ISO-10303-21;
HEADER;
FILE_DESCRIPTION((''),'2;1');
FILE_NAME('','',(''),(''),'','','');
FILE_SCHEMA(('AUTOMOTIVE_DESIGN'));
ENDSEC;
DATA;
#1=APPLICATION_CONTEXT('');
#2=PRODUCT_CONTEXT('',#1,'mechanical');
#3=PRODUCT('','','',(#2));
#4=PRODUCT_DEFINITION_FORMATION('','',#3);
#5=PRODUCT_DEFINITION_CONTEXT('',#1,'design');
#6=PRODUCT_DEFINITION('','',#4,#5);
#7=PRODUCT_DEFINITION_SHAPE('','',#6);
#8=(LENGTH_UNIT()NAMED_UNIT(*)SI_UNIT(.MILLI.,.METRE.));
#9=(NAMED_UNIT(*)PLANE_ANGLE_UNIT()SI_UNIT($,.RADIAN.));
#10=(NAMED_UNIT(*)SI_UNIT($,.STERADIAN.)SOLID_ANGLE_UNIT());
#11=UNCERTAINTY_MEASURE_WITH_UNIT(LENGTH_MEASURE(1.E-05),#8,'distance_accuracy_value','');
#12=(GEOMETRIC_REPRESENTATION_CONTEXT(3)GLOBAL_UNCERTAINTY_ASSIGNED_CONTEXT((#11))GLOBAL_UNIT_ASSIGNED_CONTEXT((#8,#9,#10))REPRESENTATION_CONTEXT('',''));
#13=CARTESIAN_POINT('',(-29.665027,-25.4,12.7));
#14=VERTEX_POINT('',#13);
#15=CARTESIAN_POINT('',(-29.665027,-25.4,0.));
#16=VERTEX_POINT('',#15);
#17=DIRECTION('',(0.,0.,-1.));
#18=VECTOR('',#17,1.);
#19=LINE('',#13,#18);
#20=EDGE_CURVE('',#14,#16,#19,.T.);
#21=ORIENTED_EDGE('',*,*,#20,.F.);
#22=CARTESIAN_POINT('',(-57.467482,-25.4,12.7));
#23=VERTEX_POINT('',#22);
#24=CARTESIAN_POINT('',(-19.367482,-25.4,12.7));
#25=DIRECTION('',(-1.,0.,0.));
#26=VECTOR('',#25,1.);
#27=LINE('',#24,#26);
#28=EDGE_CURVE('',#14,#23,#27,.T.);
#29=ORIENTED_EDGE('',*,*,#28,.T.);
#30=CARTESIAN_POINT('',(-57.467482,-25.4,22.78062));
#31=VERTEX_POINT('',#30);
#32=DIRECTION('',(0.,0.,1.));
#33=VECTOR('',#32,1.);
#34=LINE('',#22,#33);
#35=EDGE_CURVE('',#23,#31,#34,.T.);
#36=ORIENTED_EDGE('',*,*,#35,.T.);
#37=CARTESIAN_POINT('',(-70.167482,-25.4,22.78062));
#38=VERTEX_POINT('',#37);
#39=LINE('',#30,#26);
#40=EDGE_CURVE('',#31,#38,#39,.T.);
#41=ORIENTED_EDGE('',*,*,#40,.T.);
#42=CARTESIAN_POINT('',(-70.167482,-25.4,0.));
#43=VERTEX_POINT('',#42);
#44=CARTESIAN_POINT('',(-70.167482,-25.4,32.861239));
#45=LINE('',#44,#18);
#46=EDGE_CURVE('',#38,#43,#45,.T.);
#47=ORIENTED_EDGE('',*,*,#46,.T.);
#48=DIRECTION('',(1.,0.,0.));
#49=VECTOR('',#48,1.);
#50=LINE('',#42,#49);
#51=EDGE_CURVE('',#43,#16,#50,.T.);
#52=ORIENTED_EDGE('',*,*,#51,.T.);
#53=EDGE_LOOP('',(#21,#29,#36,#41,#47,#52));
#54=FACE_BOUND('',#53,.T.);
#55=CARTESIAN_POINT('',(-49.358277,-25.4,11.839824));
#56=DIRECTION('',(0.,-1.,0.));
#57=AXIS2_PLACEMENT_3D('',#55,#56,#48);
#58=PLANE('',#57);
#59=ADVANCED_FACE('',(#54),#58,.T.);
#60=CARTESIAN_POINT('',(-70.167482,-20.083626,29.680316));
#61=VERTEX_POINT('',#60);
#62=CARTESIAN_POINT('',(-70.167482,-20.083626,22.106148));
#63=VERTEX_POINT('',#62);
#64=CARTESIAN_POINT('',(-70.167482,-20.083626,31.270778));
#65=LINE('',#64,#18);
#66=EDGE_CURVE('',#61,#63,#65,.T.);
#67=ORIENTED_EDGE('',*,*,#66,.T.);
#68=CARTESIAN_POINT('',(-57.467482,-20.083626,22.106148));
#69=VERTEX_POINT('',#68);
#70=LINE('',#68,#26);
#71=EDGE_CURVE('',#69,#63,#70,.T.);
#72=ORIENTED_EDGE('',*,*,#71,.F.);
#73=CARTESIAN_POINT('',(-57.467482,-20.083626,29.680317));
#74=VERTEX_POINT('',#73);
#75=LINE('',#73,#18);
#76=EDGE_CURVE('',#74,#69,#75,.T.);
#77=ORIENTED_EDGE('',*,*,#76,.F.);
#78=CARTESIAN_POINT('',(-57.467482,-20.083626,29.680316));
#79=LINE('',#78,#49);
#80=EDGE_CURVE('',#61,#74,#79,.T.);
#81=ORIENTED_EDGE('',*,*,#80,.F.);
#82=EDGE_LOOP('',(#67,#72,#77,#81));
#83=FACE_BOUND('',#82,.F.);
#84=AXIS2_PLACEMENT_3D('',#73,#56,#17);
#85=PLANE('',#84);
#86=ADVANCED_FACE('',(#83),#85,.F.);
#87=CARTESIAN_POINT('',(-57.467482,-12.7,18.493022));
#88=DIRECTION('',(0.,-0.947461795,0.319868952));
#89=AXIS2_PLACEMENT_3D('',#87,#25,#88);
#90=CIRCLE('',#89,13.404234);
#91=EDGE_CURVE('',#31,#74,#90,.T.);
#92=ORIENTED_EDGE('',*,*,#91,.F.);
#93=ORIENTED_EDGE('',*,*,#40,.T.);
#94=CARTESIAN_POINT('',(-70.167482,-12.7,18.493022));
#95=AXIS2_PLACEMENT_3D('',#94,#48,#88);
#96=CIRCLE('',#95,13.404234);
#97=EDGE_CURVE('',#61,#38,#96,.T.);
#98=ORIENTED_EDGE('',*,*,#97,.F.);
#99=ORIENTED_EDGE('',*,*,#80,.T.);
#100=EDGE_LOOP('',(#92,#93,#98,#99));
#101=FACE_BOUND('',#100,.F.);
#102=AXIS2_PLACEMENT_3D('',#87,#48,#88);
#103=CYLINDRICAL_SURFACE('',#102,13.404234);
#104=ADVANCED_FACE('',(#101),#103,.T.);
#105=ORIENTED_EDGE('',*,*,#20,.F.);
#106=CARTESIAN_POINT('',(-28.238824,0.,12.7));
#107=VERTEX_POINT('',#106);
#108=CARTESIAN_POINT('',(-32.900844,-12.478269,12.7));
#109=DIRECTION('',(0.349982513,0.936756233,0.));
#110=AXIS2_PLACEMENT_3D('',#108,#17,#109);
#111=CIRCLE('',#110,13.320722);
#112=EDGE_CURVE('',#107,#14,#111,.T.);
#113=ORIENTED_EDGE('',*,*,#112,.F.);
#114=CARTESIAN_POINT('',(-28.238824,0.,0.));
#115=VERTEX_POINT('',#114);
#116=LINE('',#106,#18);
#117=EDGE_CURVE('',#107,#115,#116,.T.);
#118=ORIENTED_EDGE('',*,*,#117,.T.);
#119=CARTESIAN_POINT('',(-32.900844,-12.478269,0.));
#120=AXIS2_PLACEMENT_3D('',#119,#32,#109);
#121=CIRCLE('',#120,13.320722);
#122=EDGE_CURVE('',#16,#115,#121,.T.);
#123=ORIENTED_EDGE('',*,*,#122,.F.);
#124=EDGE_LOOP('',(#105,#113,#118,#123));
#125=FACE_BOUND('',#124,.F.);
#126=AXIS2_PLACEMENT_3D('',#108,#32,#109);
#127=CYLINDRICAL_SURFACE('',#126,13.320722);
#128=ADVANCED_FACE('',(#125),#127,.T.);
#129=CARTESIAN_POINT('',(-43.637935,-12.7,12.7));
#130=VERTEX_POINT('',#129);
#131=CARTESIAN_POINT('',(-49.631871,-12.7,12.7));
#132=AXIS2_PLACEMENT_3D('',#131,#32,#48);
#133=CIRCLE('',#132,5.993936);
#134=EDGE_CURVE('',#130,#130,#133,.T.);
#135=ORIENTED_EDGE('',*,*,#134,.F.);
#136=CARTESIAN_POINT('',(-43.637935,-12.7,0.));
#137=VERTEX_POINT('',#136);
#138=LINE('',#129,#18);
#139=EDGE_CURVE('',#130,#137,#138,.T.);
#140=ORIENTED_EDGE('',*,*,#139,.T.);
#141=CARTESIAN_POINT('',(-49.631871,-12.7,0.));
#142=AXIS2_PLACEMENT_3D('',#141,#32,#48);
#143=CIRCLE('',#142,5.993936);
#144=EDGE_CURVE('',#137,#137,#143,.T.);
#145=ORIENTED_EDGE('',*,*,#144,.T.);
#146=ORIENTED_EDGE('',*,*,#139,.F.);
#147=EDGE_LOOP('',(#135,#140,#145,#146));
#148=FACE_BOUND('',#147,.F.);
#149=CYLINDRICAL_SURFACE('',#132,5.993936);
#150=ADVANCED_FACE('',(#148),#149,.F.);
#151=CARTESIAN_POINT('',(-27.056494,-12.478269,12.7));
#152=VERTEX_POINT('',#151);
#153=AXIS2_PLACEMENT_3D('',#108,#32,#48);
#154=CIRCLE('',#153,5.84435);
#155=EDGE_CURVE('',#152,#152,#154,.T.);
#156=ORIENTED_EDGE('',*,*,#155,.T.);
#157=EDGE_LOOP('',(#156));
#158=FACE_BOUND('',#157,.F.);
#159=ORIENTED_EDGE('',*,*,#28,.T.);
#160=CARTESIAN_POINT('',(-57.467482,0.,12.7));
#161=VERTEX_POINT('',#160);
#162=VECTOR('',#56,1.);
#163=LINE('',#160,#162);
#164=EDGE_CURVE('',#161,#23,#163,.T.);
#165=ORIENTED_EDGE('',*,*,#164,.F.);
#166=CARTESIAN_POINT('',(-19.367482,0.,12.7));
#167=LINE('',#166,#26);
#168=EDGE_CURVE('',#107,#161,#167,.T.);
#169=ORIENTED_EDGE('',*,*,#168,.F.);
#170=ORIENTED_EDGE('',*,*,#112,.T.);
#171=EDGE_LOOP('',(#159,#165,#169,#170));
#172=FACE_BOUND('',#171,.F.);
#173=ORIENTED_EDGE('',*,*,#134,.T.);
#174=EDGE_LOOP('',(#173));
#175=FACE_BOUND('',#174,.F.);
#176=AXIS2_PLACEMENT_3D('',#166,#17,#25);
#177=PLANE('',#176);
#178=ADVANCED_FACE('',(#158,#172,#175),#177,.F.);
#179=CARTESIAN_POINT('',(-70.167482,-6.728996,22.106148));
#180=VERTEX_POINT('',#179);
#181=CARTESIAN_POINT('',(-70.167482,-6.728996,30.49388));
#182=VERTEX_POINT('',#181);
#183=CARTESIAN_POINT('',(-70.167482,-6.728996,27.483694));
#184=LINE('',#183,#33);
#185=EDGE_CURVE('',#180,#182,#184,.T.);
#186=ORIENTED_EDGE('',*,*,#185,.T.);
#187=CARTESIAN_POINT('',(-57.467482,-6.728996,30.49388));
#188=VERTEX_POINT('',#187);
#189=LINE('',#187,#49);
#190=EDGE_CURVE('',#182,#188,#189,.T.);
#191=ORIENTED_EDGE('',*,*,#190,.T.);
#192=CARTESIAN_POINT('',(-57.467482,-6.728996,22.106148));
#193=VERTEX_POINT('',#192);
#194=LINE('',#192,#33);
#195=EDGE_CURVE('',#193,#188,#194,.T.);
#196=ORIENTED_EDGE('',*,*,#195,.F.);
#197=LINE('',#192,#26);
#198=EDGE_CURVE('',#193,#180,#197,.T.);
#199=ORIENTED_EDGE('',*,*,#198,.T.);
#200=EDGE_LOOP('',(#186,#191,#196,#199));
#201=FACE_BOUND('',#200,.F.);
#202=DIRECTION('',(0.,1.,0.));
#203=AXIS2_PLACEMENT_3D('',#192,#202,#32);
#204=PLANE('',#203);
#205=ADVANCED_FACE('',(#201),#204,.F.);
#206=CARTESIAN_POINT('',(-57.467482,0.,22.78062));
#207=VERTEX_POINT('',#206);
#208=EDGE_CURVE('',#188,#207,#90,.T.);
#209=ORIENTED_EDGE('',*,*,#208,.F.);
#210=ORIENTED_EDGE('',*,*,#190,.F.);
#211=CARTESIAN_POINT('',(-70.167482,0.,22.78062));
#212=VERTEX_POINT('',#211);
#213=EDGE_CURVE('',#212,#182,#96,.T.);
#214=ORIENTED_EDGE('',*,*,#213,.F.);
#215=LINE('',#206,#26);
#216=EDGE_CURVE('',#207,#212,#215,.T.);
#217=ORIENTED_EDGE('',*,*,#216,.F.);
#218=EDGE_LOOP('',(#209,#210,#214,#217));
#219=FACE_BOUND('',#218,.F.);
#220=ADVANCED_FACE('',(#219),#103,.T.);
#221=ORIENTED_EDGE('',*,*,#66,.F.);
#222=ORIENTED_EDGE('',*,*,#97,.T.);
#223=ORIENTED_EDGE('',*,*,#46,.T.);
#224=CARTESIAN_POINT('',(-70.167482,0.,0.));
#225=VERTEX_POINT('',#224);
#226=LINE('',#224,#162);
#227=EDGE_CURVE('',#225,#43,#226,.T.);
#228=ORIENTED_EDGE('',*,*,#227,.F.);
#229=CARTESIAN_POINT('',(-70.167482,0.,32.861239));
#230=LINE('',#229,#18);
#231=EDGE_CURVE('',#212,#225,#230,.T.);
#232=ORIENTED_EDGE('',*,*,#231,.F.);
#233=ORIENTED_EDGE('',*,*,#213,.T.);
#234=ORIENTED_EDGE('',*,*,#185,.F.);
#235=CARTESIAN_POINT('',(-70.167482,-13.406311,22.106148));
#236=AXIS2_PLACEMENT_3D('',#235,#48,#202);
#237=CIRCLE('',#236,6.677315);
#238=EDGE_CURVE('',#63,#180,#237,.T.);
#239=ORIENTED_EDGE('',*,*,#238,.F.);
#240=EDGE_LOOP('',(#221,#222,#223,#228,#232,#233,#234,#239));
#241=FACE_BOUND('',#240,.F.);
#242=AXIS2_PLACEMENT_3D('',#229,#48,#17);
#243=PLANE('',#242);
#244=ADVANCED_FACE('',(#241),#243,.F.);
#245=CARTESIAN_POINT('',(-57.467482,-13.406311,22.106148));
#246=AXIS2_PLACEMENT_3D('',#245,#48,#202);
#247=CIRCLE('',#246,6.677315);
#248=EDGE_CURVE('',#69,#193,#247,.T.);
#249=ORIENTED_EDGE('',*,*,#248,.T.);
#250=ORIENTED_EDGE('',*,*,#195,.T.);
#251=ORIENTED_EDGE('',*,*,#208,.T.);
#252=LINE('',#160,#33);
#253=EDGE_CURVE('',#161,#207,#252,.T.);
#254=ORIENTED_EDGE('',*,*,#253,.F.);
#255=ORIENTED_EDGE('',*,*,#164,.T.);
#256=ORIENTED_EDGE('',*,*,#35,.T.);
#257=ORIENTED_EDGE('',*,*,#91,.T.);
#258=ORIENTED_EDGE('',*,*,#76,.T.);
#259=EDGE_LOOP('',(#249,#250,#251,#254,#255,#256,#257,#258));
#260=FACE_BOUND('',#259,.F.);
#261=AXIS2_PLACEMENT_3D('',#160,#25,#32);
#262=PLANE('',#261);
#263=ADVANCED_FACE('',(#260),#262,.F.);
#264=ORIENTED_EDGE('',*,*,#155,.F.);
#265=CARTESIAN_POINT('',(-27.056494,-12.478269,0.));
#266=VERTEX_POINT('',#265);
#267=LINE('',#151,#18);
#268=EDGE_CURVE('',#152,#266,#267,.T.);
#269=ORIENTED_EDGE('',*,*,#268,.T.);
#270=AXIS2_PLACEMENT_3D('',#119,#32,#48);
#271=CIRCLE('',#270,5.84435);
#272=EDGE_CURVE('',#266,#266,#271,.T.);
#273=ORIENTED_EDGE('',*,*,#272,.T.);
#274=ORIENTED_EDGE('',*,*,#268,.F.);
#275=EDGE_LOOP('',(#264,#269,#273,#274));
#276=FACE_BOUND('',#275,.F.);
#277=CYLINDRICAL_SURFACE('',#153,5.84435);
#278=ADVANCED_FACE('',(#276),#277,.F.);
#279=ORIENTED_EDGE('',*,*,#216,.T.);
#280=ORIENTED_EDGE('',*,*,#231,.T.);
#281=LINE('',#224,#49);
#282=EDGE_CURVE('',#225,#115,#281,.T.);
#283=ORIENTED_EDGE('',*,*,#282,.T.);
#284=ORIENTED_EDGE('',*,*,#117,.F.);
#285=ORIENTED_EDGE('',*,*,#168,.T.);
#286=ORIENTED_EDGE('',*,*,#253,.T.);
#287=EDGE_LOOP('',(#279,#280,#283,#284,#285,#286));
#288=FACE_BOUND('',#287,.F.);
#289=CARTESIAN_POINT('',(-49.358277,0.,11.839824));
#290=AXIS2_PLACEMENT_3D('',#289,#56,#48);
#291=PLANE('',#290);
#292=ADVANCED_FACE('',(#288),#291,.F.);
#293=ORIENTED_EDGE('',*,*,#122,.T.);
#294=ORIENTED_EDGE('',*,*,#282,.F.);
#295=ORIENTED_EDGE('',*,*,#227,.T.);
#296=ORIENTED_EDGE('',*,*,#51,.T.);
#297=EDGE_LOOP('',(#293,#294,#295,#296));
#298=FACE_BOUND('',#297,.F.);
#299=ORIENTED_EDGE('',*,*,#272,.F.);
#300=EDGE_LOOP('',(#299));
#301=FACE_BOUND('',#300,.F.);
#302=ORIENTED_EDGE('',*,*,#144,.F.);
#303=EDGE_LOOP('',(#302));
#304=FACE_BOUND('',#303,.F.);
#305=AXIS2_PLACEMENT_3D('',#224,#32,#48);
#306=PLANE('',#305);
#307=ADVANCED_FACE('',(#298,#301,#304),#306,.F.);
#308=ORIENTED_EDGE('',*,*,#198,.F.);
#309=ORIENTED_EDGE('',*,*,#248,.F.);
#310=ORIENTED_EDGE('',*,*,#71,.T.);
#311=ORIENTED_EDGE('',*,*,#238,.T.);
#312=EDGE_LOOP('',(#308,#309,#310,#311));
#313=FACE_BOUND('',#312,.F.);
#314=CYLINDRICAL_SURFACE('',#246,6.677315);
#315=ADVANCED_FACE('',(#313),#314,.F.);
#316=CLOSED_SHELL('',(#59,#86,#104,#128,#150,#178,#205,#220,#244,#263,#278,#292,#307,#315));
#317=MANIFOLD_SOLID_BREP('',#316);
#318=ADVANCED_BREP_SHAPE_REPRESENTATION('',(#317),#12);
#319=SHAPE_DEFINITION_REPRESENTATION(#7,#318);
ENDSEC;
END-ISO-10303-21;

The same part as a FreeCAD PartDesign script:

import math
import FreeCAD as App
import Part
import Sketcher
from FreeCAD import Vector
Q = App.Units.Quantity


def add_polygon(sketch, points):
    """Adds a closed chain of lines whose ends are joined by coincident constraints."""
    first, n = sketch.GeometryCount, len(points)
    for a, b in zip(points, points[1:] + points[:1]):
        sketch.addGeometry(Part.LineSegment(App.Vector(*a, 0), App.Vector(*b, 0)), False)
    for i in range(n):
        sketch.addConstraint(Sketcher.Constraint("Coincident", first + i, 2, first + (i + 1) % n, 1))

doc = App.newDocument("Part")
body = doc.addObject("PartDesign::Body", "Body")

# Sketch on XZ plane
sketch1 = doc.addObject("Sketcher::SketchObject", "Sketch")
body.addObject(sketch1)
sketch1.AttachmentSupport = (doc.XZ_Plane, [""])
sketch1.MapMode = "FlatFace"
add_polygon(sketch1, [(-70.167482, 32.861239), (-70.167482, 0), (-19.367482, 0), (-19.367482, 12.7), (-57.467482, 12.7), (-57.467482, 32.861239)])  # lines 0-5
sketch1.addConstraint(Sketcher.Constraint("Vertical", 0))
sketch1.addConstraint(Sketcher.Constraint("Horizontal", 1))
sketch1.addConstraint(Sketcher.Constraint("Vertical", 2))
sketch1.addConstraint(Sketcher.Constraint("Horizontal", 3))
sketch1.addConstraint(Sketcher.Constraint("Vertical", 4))
sketch1.addConstraint(Sketcher.Constraint("Horizontal", 5))
sketch1.addConstraint(Sketcher.Constraint("PointOnObject", 0, 2, -1))
sketch1.addConstraint(Sketcher.Constraint("Equal", 5, 2))
sketch1.addConstraint(Sketcher.Constraint("DistanceX", 1, 1, 1, 2, Q("2 in")))
sketch1.addConstraint(Sketcher.Constraint("DistanceX", 3, 2, 3, 1, Q("1.5 in")))
sketch1.addConstraint(Sketcher.Constraint("DistanceY", 0, 2, 0, 1, 32.861239))
sketch1.addConstraint(Sketcher.Constraint("DistanceX", 1, 2, -1, 1, 19.367482))
pad1 = doc.addObject("PartDesign::Pad", "Pad")
body.addObject(pad1)
pad1.Profile = sketch1
pad1.Length = Q("1 in")

# Sketch on YZ plane
sketch2 = doc.addObject("Sketcher::SketchObject", "Sketch001")
body.addObject(sketch2)
sketch2.AttachmentSupport = (doc.YZ_Plane, [""])
sketch2.MapMode = "FlatFace"
sketch2.AttachmentOffset = App.Placement(Vector(0, 0, -57.467482), App.Rotation())
sketch2.addGeometry(Part.ArcOfCircle(Part.Circle(Vector(-12.7, 18.493022, 0), Vector(0, 0, 1), 13.404234), math.radians(18.655), math.radians(161.345)), False)
sketch2.addGeometry(Part.LineSegment(Vector(0, 22.78062, 0), Vector(0, 32.861239, 0)), False)
sketch2.addGeometry(Part.LineSegment(Vector(0, 32.861239, 0), Vector(-25.4, 32.861239, 0)), False)
sketch2.addGeometry(Part.LineSegment(Vector(-25.4, 32.861239, 0), Vector(-25.4, 22.78062, 0)), False)
sketch2.addConstraint(Sketcher.Constraint("Coincident", 0, 1, 1, 1))
sketch2.addConstraint(Sketcher.Constraint("Coincident", 1, 2, 2, 1))
sketch2.addConstraint(Sketcher.Constraint("Coincident", 2, 2, 3, 1))
sketch2.addConstraint(Sketcher.Constraint("Coincident", 3, 2, 0, 2))
sketch2.addConstraint(Sketcher.Constraint("Vertical", 1))
sketch2.addConstraint(Sketcher.Constraint("Horizontal", 2))
sketch2.addConstraint(Sketcher.Constraint("Vertical", 3))
sketch2.addConstraint(Sketcher.Constraint("PointOnObject", 0, 1, -2))
sketch2.addConstraint(Sketcher.Constraint("Horizontal", 0, 1, 3, 2))
sketch2.addConstraint(Sketcher.Constraint("DistanceX", 2, 2, 2, 1, Q("1 in")))
sketch2.addConstraint(Sketcher.Constraint("Radius", 0, 13.404234))
sketch2.addConstraint(Sketcher.Constraint("DistanceY", 1, 1, 1, 2, 10.080619))
sketch2.addConstraint(Sketcher.Constraint("DistanceY", -1, 1, 0, 3, 18.493022))
pocket1 = doc.addObject("PartDesign::Pocket", "Pocket")
body.addObject(pocket1)
pocket1.Profile = sketch2
pocket1.Length = Q("1 in")

# Sketch on YZ plane
sketch3 = doc.addObject("Sketcher::SketchObject", "Sketch002")
body.addObject(sketch3)
sketch3.AttachmentSupport = (doc.YZ_Plane, [""])
sketch3.MapMode = "FlatFace"
sketch3.AttachmentOffset = App.Placement(Vector(0, 0, -57.467482), App.Rotation())
sketch3.addGeometry(Part.LineSegment(Vector(-6.728996, 22.106148, 0), Vector(-6.728996, 30.493881, 0)), False)
sketch3.addGeometry(Part.ArcOfCircle(Part.Circle(Vector(-12.7, 18.493019, 0), Vector(0, 0, 1), 13.404237), math.radians(63.547454), math.radians(123.424846)), False)
sketch3.addGeometry(Part.LineSegment(Vector(-20.083626, 29.680317, 0), Vector(-20.083626, 22.106148, 0)), False)
sketch3.addGeometry(Part.ArcOfCircle(Part.Circle(Vector(-13.406311, 22.106148, 0), Vector(0, 0, 1), 6.677315), math.radians(180), math.radians(360)), False)
sketch3.addConstraint(Sketcher.Constraint("Coincident", 0, 2, 1, 1))
sketch3.addConstraint(Sketcher.Constraint("Coincident", 1, 2, 2, 1))
sketch3.addConstraint(Sketcher.Constraint("Tangent", 2, 2, 3, 1))
sketch3.addConstraint(Sketcher.Constraint("Tangent", 3, 2, 0, 1))
sketch3.addConstraint(Sketcher.Constraint("Vertical", 0))
sketch3.addConstraint(Sketcher.Constraint("Vertical", 2))
sketch3.addConstraint(Sketcher.Constraint("DistanceX", 1, 3, -1, 1, Q("0.5 in")))
sketch3.addConstraint(Sketcher.Constraint("Radius", 1, 13.404237))
sketch3.addConstraint(Sketcher.Constraint("Radius", 3, 6.677315))
sketch3.addConstraint(Sketcher.Constraint("DistanceY", 2, 2, 2, 1, 7.574169))
sketch3.addConstraint(Sketcher.Constraint("DistanceY", 0, 1, 0, 2, 8.387733))
sketch3.addConstraint(Sketcher.Constraint("DistanceY", -1, 1, 1, 3, 18.493019))
pocket2 = doc.addObject("PartDesign::Pocket", "Pocket001")
body.addObject(pocket2)
pocket2.Profile = sketch3
pocket2.Length = Q("1 in")

# Sketch on XY plane
sketch4 = doc.addObject("Sketcher::SketchObject", "Sketch003")
body.addObject(sketch4)
sketch4.AttachmentSupport = (doc.XY_Plane, [""])
sketch4.MapMode = "FlatFace"
sketch4.AttachmentOffset = App.Placement(Vector(0, 0, 0.5 * 25.4), App.Rotation())
sketch4.addGeometry(Part.ArcOfCircle(Part.Circle(Vector(-32.900844, -12.478269, 0), Vector(0, 0, 1), 13.320722), math.radians(-75.94129), math.radians(69.513754)), False)
sketch4.addGeometry(Part.LineSegment(Vector(-29.665027, -25.4, 0), Vector(-19.367482, -25.4, 0)), False)
sketch4.addGeometry(Part.LineSegment(Vector(-19.367482, -25.4, 0), Vector(-19.367482, 0, 0)), False)
sketch4.addGeometry(Part.LineSegment(Vector(-19.367482, 0, 0), Vector(-28.238824, 0, 0)), False)
sketch4.addConstraint(Sketcher.Constraint("Coincident", 0, 1, 1, 1))
sketch4.addConstraint(Sketcher.Constraint("Coincident", 1, 2, 2, 1))
sketch4.addConstraint(Sketcher.Constraint("Coincident", 2, 2, 3, 1))
sketch4.addConstraint(Sketcher.Constraint("Coincident", 3, 2, 0, 2))
sketch4.addConstraint(Sketcher.Constraint("Horizontal", 1))
sketch4.addConstraint(Sketcher.Constraint("Vertical", 2))
sketch4.addConstraint(Sketcher.Constraint("Horizontal", 3))
sketch4.addConstraint(Sketcher.Constraint("PointOnObject", 2, 2, -1))
sketch4.addConstraint(Sketcher.Constraint("DistanceY", 2, 1, 2, 2, Q("1 in")))
sketch4.addConstraint(Sketcher.Constraint("Radius", 0, 13.320722))
sketch4.addConstraint(Sketcher.Constraint("DistanceX", 1, 1, 1, 2, 10.297545))
sketch4.addConstraint(Sketcher.Constraint("DistanceX", 3, 2, 3, 1, 8.871342))
sketch4.addConstraint(Sketcher.Constraint("DistanceX", 1, 2, -1, 1, 19.367482))
pocket3 = doc.addObject("PartDesign::Pocket", "Pocket002")
body.addObject(pocket3)
pocket3.Profile = sketch4
pocket3.Length = Q("1 in")

# Sketch on XY plane
sketch5 = doc.addObject("Sketcher::SketchObject", "Sketch004")
body.addObject(sketch5)
sketch5.AttachmentSupport = (doc.XY_Plane, [""])
sketch5.MapMode = "FlatFace"
sketch5.AttachmentOffset = App.Placement(Vector(0, 0, 0.5 * 25.4), App.Rotation())
sketch5.addGeometry(Part.Circle(Vector(-32.900844, -12.478269, 0), Vector(0, 0, 1), 5.84435), False)
sketch5.addGeometry(Part.Circle(Vector(-49.631871, -12.7, 0), Vector(0, 0, 1), 5.993936), False)
sketch5.addConstraint(Sketcher.Constraint("DistanceY", 1, 3, -1, 1, Q("0.5 in")))
sketch5.addConstraint(Sketcher.Constraint("Diameter", 0, 11.6887))
sketch5.addConstraint(Sketcher.Constraint("Diameter", 1, 11.987872))
sketch5.addConstraint(Sketcher.Constraint("DistanceY", 0, 3, -1, 1, 12.478269))
sketch5.addConstraint(Sketcher.Constraint("DistanceX", 1, 3, -1, 1, 49.631871))
sketch5.addConstraint(Sketcher.Constraint("DistanceX", 0, 3, -1, 1, 32.900844))
pocket4 = doc.addObject("PartDesign::Pocket", "Pocket003")
body.addObject(pocket4)
pocket4.Profile = sketch5
pocket4.Length = Q("1 in")

doc.recompute()
